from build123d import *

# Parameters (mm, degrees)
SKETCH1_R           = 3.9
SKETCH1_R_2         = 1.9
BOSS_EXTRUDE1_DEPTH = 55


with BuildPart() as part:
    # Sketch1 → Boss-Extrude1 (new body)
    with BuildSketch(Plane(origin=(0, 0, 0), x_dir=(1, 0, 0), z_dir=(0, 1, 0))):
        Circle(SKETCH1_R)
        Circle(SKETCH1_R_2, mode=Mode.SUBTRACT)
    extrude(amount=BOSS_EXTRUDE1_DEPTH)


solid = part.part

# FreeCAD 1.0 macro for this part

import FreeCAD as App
import Part
import Sketcher
from FreeCAD import Vector

doc = App.newDocument("Part")
params = doc.addObject("Spreadsheet::Sheet", "Params")
for row, (alias, value) in enumerate([
    ("sketch1_diameter", "7.8 mm"),
    ("sketch1_diameter2", "3.8 mm"),
    ("pad1_length", "55 mm"),
], start=1):
    params.set(f"A{row}", alias)
    params.set(f"B{row}", "=" + value)
    params.setAlias(f"B{row}", alias)

body = doc.addObject("PartDesign::Body", "Body")

sketch1 = body.newObject("Sketcher::SketchObject", "Sketch")
sketch1.AttachmentSupport = (doc.getObject("XZ_Plane"), [""])
sketch1.MapMode = "FlatFace"
sketch1.addGeometry([
    Part.Circle(Vector(0, 0, 0), Vector(0, 0, 1), 3.9),
    Part.Circle(Vector(0, 0, 0), Vector(0, 0, 1), 1.9),
], False)
sketch1.addConstraint([
    Sketcher.Constraint("Coincident", 0, 3, -1, 1),
    Sketcher.Constraint("Coincident", 1, 3, -1, 1),
    Sketcher.Constraint("Diameter", 0, 7.8),
    Sketcher.Constraint("Diameter", 1, 3.8),
])
sketch1.setExpression("Constraints[2]", "Params.sketch1_diameter")
sketch1.setExpression("Constraints[3]", "Params.sketch1_diameter2")
pad1 = body.newObject("PartDesign::Pad", "Pad")
pad1.Profile = sketch1
pad1.setExpression("Length", "Params.pad1_length")
pad1.Reversed = True

doc.recompute()
